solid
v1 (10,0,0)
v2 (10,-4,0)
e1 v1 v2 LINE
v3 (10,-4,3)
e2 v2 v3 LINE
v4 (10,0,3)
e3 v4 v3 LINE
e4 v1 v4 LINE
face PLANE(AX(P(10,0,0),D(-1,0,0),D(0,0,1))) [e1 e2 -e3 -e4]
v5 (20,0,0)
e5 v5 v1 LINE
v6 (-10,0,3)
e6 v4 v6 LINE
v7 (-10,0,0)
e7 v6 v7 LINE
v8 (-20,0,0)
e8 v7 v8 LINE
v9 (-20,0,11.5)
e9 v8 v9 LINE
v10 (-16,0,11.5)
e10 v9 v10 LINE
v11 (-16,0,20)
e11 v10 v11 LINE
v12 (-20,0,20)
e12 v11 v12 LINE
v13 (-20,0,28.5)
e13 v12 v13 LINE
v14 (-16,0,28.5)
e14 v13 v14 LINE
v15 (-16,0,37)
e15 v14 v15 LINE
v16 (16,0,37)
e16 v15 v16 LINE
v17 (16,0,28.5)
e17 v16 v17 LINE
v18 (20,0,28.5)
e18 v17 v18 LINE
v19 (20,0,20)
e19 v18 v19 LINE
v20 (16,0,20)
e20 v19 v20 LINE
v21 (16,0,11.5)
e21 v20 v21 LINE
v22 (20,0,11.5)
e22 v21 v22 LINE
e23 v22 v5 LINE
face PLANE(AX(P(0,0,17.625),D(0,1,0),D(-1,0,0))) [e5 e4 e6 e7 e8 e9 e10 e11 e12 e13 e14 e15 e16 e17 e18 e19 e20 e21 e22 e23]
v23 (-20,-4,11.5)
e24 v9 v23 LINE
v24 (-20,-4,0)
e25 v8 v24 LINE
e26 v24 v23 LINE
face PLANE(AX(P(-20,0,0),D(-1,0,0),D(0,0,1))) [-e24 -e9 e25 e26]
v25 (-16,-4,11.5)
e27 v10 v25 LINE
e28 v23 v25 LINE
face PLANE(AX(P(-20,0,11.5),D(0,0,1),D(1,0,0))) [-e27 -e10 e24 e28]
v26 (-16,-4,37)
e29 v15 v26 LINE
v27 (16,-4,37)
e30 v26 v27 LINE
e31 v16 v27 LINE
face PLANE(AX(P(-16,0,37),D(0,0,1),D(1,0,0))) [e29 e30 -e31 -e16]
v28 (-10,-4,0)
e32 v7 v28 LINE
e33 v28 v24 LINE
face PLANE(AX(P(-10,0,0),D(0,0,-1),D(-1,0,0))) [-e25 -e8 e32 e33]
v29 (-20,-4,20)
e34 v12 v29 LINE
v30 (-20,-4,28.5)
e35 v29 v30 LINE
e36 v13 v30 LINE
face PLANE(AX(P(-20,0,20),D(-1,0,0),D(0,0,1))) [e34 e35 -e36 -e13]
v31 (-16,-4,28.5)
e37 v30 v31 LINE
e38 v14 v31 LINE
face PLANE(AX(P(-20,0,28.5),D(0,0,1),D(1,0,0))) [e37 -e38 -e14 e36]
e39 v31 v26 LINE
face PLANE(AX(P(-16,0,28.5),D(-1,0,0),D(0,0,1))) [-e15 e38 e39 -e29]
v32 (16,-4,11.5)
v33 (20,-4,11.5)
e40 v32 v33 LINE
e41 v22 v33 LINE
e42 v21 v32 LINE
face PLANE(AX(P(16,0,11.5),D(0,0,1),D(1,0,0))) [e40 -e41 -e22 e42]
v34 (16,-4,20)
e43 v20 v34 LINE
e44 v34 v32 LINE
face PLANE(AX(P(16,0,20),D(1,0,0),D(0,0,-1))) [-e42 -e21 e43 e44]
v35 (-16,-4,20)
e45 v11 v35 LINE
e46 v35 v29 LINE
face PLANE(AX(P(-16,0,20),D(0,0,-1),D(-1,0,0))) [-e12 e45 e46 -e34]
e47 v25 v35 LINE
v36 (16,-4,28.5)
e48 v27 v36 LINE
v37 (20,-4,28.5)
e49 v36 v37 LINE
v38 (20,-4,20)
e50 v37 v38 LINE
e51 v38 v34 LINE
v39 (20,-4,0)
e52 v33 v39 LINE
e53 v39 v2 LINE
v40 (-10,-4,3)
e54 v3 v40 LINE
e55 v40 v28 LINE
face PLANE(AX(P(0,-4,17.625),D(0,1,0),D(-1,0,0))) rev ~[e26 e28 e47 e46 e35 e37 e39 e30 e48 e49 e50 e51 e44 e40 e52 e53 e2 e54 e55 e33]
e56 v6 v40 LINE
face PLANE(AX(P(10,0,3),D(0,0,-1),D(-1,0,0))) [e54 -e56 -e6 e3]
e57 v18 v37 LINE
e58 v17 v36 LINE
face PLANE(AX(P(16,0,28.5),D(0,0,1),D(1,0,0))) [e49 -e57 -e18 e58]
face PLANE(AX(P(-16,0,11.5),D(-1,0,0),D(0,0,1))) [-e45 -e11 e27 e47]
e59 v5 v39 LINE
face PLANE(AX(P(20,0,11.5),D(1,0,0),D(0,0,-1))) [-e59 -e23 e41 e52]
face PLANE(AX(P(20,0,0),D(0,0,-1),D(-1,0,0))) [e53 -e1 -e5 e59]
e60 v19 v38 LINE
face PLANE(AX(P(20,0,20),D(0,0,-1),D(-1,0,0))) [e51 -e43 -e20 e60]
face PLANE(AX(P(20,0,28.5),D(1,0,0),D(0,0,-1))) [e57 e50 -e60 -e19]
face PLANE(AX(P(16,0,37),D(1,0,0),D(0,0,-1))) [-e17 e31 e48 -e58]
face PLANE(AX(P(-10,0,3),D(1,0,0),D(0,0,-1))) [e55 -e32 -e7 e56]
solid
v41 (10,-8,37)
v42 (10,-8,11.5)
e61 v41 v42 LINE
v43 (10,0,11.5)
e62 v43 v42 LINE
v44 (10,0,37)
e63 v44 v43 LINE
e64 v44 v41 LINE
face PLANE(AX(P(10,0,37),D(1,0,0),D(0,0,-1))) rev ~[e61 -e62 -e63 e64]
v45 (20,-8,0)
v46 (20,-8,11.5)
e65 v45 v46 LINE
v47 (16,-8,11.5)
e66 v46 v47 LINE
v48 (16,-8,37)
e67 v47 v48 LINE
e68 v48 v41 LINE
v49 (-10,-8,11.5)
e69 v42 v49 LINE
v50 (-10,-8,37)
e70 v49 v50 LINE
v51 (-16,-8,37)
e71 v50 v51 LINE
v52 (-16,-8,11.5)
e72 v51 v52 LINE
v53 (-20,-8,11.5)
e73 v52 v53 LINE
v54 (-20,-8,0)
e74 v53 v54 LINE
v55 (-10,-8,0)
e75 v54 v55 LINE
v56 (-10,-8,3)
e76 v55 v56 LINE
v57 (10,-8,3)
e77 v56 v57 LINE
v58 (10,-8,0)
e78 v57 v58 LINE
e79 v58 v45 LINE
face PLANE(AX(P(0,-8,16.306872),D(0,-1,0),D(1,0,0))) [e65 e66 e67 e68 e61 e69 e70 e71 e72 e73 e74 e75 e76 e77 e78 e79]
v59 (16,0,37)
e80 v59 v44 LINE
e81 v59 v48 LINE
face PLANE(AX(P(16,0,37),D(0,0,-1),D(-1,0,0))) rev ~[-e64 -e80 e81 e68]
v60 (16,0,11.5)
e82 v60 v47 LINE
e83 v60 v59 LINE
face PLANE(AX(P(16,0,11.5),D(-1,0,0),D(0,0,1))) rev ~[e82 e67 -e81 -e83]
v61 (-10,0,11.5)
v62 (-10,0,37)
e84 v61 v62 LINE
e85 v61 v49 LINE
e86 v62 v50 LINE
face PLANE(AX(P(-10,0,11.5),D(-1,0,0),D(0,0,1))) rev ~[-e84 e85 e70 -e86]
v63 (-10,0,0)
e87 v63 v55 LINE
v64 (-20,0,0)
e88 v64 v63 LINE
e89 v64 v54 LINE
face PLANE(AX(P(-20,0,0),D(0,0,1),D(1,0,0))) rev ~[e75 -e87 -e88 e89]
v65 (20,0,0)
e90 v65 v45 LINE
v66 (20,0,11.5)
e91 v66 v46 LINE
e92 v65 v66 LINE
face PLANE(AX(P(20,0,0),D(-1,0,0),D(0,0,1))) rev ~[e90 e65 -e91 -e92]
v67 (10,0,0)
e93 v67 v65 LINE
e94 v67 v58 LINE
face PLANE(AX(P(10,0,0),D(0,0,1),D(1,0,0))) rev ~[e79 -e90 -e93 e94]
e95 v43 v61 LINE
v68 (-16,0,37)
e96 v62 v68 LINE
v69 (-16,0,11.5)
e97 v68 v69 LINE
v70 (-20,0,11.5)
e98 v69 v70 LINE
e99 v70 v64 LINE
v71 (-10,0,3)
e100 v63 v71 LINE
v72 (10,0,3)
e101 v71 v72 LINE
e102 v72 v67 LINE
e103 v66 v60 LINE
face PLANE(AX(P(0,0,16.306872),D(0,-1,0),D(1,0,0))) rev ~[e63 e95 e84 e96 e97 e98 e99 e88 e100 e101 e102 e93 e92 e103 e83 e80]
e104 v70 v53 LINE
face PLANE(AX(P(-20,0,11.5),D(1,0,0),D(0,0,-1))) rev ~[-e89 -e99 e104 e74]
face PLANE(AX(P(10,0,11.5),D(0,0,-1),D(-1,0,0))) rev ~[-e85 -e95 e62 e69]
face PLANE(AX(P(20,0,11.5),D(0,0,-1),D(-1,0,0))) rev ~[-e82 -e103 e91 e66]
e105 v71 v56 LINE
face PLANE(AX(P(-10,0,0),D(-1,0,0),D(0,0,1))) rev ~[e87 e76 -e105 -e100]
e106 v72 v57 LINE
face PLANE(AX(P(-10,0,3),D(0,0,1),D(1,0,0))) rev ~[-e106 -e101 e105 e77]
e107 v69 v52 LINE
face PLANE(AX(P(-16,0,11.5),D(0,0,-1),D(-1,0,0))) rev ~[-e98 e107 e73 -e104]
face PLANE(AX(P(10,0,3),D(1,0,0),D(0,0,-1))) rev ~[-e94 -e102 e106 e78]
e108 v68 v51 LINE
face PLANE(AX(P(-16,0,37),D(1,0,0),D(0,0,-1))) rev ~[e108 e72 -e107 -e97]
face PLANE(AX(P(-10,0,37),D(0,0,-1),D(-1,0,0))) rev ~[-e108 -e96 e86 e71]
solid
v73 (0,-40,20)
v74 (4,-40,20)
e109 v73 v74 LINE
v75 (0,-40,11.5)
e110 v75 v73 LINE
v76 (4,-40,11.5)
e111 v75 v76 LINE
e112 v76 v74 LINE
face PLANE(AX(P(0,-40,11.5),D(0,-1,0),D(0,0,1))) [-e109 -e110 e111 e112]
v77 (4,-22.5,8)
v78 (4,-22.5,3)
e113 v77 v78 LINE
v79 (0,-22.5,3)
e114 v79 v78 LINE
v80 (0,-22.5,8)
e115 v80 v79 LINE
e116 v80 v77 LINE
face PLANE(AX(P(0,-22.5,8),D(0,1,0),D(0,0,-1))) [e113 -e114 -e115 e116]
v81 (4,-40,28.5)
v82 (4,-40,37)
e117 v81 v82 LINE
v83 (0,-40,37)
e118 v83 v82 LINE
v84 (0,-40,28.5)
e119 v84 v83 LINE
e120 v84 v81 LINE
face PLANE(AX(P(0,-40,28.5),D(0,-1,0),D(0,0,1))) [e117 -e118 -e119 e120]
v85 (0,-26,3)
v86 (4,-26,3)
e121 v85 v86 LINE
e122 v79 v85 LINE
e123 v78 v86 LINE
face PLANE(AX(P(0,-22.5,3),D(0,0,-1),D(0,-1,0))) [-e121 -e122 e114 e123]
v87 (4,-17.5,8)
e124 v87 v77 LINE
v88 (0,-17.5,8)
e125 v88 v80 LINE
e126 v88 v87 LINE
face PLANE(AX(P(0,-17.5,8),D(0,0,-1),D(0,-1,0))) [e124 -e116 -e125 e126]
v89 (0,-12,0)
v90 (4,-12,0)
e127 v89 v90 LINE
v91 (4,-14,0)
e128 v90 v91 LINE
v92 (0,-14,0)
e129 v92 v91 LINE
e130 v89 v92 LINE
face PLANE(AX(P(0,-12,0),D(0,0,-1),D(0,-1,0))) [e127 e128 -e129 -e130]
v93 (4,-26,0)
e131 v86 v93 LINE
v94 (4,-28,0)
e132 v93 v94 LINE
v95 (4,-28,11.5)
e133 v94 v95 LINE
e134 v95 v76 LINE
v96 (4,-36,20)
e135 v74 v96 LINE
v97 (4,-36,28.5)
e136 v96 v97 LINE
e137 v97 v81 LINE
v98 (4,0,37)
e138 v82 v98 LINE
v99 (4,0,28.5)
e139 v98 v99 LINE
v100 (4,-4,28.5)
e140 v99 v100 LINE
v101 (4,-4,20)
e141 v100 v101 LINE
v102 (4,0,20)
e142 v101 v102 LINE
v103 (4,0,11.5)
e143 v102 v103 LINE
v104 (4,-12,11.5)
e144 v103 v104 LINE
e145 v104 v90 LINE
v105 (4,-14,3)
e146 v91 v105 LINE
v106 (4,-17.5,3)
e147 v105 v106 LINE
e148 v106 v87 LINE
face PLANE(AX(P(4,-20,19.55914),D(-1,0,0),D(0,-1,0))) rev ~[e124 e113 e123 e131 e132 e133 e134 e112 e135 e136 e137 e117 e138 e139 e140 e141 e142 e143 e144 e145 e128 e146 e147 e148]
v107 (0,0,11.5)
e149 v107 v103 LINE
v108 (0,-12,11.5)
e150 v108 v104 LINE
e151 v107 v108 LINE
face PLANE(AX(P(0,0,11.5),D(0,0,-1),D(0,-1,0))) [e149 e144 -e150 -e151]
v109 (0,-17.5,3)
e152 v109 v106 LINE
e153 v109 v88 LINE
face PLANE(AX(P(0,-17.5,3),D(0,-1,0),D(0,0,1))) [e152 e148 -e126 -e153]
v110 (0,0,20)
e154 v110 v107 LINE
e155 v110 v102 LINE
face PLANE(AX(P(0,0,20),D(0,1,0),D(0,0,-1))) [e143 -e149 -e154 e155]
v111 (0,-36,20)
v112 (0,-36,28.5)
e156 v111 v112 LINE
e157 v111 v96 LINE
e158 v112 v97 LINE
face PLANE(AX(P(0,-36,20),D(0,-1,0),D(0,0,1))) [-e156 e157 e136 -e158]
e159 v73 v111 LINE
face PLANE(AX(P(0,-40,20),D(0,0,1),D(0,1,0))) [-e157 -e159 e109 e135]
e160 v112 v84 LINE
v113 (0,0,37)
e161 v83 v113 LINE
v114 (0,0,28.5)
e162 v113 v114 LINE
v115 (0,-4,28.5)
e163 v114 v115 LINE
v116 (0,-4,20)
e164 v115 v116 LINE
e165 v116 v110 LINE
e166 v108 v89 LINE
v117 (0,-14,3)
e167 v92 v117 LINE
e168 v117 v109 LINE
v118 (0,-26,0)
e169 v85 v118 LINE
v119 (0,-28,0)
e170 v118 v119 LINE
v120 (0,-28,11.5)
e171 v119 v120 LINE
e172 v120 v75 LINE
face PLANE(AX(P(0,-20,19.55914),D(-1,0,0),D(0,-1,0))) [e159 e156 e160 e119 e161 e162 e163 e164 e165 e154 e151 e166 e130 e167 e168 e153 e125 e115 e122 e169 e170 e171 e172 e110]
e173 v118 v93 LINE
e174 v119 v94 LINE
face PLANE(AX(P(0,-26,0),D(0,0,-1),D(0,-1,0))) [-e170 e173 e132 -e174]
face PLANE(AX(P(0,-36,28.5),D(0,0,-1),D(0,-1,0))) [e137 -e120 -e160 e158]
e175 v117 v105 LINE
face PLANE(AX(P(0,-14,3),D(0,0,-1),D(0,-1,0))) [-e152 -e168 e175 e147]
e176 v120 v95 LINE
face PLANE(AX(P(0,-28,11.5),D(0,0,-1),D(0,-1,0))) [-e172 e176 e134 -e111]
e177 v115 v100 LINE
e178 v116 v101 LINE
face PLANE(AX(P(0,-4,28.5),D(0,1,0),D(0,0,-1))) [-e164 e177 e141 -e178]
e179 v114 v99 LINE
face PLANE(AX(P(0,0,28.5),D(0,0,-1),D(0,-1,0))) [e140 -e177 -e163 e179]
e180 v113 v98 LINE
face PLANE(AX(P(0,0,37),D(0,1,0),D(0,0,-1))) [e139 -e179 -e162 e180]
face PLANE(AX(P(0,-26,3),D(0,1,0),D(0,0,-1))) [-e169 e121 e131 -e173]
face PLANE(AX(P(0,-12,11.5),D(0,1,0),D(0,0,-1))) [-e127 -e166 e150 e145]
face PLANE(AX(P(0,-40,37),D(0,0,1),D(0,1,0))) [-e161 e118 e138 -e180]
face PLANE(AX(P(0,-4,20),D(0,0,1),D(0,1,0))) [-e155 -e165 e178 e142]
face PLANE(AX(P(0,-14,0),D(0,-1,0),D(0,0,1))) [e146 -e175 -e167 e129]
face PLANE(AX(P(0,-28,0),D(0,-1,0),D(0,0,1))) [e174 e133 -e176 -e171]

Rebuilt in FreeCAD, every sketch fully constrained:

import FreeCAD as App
import Part
import Sketcher
Q = App.Units.Quantity


def add_polygon(sketch, points):
    """Adds a closed chain of lines whose ends are joined by coincident constraints."""
    first, n = sketch.GeometryCount, len(points)
    for a, b in zip(points, points[1:] + points[:1]):
        sketch.addGeometry(Part.LineSegment(App.Vector(*a, 0), App.Vector(*b, 0)), False)
    for i in range(n):
        sketch.addConstraint(Sketcher.Constraint("Coincident", first + i, 2, first + (i + 1) % n, 1))

doc = App.newDocument("Part")
body = doc.addObject("PartDesign::Body", "Body")

# Sketch on XZ plane
sketch1 = body.newObject("Sketcher::SketchObject", "Sketch")
sketch1.AttachmentSupport = (doc.getObject("XZ_Plane"), [""])
sketch1.MapMode = "FlatFace"
add_polygon(sketch1, [(16, 37), (-16, 37), (-16, 28.5), (-20, 28.5), (-20, 20), (-16, 20), (-16, 11.5), (-20, 11.5), (-20, 0), (-10, 0), (-10, 3), (10, 3), (10, 0), (20, 0), (20, 11.5), (16, 11.5), (16, 20), (20, 20), (20, 28.5), (16, 28.5)])  # lines 0-19
sketch1.addConstraint(Sketcher.Constraint("Horizontal", 0))
sketch1.addConstraint(Sketcher.Constraint("Vertical", 1))
sketch1.addConstraint(Sketcher.Constraint("Horizontal", 2))
sketch1.addConstraint(Sketcher.Constraint("Vertical", 3))
sketch1.addConstraint(Sketcher.Constraint("Horizontal", 4))
sketch1.addConstraint(Sketcher.Constraint("Vertical", 5))
sketch1.addConstraint(Sketcher.Constraint("Horizontal", 6))
sketch1.addConstraint(Sketcher.Constraint("Vertical", 7))
sketch1.addConstraint(Sketcher.Constraint("Horizontal", 8))
sketch1.addConstraint(Sketcher.Constraint("Vertical", 9))
sketch1.addConstraint(Sketcher.Constraint("Horizontal", 10))
sketch1.addConstraint(Sketcher.Constraint("Vertical", 11))
sketch1.addConstraint(Sketcher.Constraint("Horizontal", 12))
sketch1.addConstraint(Sketcher.Constraint("Vertical", 13))
sketch1.addConstraint(Sketcher.Constraint("Horizontal", 14))
sketch1.addConstraint(Sketcher.Constraint("Vertical", 15))
sketch1.addConstraint(Sketcher.Constraint("Horizontal", 16))
sketch1.addConstraint(Sketcher.Constraint("Vertical", 17))
sketch1.addConstraint(Sketcher.Constraint("Horizontal", 18))
sketch1.addConstraint(Sketcher.Constraint("Vertical", 19))
sketch1.addConstraint(Sketcher.Constraint("Symmetric", 8, 2, 11, 2, -1, 1))
sketch1.addConstraint(Sketcher.Constraint("Symmetric", 7, 2, 12, 2, -2))
sketch1.addConstraint(Sketcher.Constraint("Symmetric", 5, 2, 14, 2, -2))
sketch1.addConstraint(Sketcher.Constraint("Symmetric", 3, 2, 16, 2, -2))
sketch1.addConstraint(Sketcher.Constraint("Symmetric", 1, 2, 18, 2, -2))
sketch1.addConstraint(Sketcher.Constraint("Vertical", 1, 2, 4, 2))
sketch1.addConstraint(Sketcher.Constraint("Vertical", 3, 2, 6, 2))
sketch1.addConstraint(Sketcher.Constraint("Equal", 1, 3))
sketch1.addConstraint(Sketcher.Constraint("Equal", 3, 5))
sketch1.addConstraint(Sketcher.Constraint("DistanceX", 0, 2, 0, 1, Q("32 mm")))
sketch1.addConstraint(Sketcher.Constraint("DistanceX", 2, 2, 2, 1, Q("4 mm")))
sketch1.addConstraint(Sketcher.Constraint("DistanceX", 8, 1, 8, 2, Q("10 mm")))
sketch1.addConstraint(Sketcher.Constraint("DistanceY", 9, 1, 9, 2, Q("3 mm")))
sketch1.addConstraint(Sketcher.Constraint("DistanceY", 1, 2, 1, 1, Q("8.5 mm")))
sketch1.addConstraint(Sketcher.Constraint("DistanceY", 7, 2, 7, 1, Q("11.5 mm")))
pad1 = body.newObject("PartDesign::Pad", "Pad")
pad1.Profile = sketch1
pad1.Length = 4
body2 = doc.addObject("PartDesign::Body", "Body001")

# Sketch on YZ plane
sketch2 = body2.newObject("Sketcher::SketchObject", "Sketch001")
sketch2.AttachmentSupport = (doc.getObject("YZ_Plane001"), [""])
sketch2.MapMode = "FlatFace"
add_polygon(sketch2, [(0, 28.5), (0, 37), (-40, 37), (-40, 28.5), (-36, 28.5), (-36, 20), (-40, 20), (-40, 11.5), (-28, 11.5), (-28, 0), (-26, 0), (-26, 3), (-22.5, 3), (-22.5, 8), (-17.5, 8), (-17.5, 3), (-14, 3), (-14, 0), (-12, 0), (-12, 11.5), (0, 11.5), (0, 20), (-4, 20), (-4, 28.5)])  # lines 0-23
sketch2.addConstraint(Sketcher.Constraint("Vertical", 0))
sketch2.addConstraint(Sketcher.Constraint("Horizontal", 1))
sketch2.addConstraint(Sketcher.Constraint("Vertical", 2))
sketch2.addConstraint(Sketcher.Constraint("Horizontal", 3))
sketch2.addConstraint(Sketcher.Constraint("Vertical", 4))
sketch2.addConstraint(Sketcher.Constraint("Horizontal", 5))
sketch2.addConstraint(Sketcher.Constraint("Vertical", 6))
sketch2.addConstraint(Sketcher.Constraint("Horizontal", 7))
sketch2.addConstraint(Sketcher.Constraint("Vertical", 8))
sketch2.addConstraint(Sketcher.Constraint("Horizontal", 9))
sketch2.addConstraint(Sketcher.Constraint("Vertical", 10))
sketch2.addConstraint(Sketcher.Constraint("Horizontal", 11))
sketch2.addConstraint(Sketcher.Constraint("Vertical", 12))
sketch2.addConstraint(Sketcher.Constraint("Horizontal", 13))
sketch2.addConstraint(Sketcher.Constraint("Vertical", 14))
sketch2.addConstraint(Sketcher.Constraint("Horizontal", 15))
sketch2.addConstraint(Sketcher.Constraint("Vertical", 16))
sketch2.addConstraint(Sketcher.Constraint("Horizontal", 17))
sketch2.addConstraint(Sketcher.Constraint("Vertical", 18))
sketch2.addConstraint(Sketcher.Constraint("Horizontal", 19))
sketch2.addConstraint(Sketcher.Constraint("Vertical", 20))
sketch2.addConstraint(Sketcher.Constraint("Horizontal", 21))
sketch2.addConstraint(Sketcher.Constraint("Vertical", 22))
sketch2.addConstraint(Sketcher.Constraint("Horizontal", 23))
sketch2.addConstraint(Sketcher.Constraint("PointOnObject", 0, 2, -2))
sketch2.addConstraint(Sketcher.Constraint("PointOnObject", 8, 2, -1))
sketch2.addConstraint(Sketcher.Constraint("PointOnObject", 16, 2, -1))
sketch2.addConstraint(Sketcher.Constraint("PointOnObject", 19, 2, -2))
sketch2.addConstraint(Sketcher.Constraint("Horizontal", 11, 2, 14, 2))
sketch2.addConstraint(Sketcher.Constraint("Horizontal", 7, 2, 18, 2))
sketch2.addConstraint(Sketcher.Constraint("Horizontal", 5, 2, 20, 2))
sketch2.addConstraint(Sketcher.Constraint("Horizontal", 3, 2, 22, 2))
sketch2.addConstraint(Sketcher.Constraint("Vertical", 2, 2, 5, 2))
sketch2.addConstraint(Sketcher.Constraint("Equal", 11, 15))
sketch2.addConstraint(Sketcher.Constraint("Equal", 9, 17))
sketch2.addConstraint(Sketcher.Constraint("Equal", 7, 19))
sketch2.addConstraint(Sketcher.Constraint("Equal", 5, 21))
sketch2.addConstraint(Sketcher.Constraint("Equal", 2, 4))
sketch2.addConstraint(Sketcher.Constraint("Equal", 4, 6))
sketch2.addConstraint(Sketcher.Constraint("Equal", 13, 12))
sketch2.addConstraint(Sketcher.Constraint("DistanceX", 1, 2, 1, 1, Q("40 mm")))
sketch2.addConstraint(Sketcher.Constraint("DistanceX", 3, 1, 3, 2, Q("4 mm")))
sketch2.addConstraint(Sketcher.Constraint("DistanceX", 7, 1, 7, 2, Q("12 mm")))
sketch2.addConstraint(Sketcher.Constraint("DistanceX", 9, 1, 9, 2, Q("2 mm")))
sketch2.addConstraint(Sketcher.Constraint("DistanceX", 13, 1, 13, 2, Q("5 mm")))
sketch2.addConstraint(Sketcher.Constraint("DistanceY", 10, 1, 10, 2, Q("3 mm")))
sketch2.addConstraint(Sketcher.Constraint("DistanceY", 0, 1, 0, 2, Q("8.5 mm")))
sketch2.addConstraint(Sketcher.Constraint("DistanceY", 8, 2, 8, 1, Q("11.5 mm")))
pad2 = body2.newObject("PartDesign::Pad", "Pad001")
pad2.Profile = sketch2
pad2.Length = 4
body3 = doc.addObject("PartDesign::Body", "Body002")

# Sketch on XZ plane
sketch3 = body3.newObject("Sketcher::SketchObject", "Sketch002")
sketch3.AttachmentSupport = (doc.getObject("XZ_Plane002"), [""])
sketch3.MapMode = "FlatFace"
add_polygon(sketch3, [(-20, 11.5), (-20, 0), (-10, 0), (-10, 3), (10, 3), (10, 0), (20, 0), (20, 11.5), (16, 11.5), (16, 37), (10, 37), (10, 11.5), (-10, 11.5), (-10, 37), (-16, 37), (-16, 11.5)])  # lines 0-15
sketch3.addConstraint(Sketcher.Constraint("Vertical", 0))
sketch3.addConstraint(Sketcher.Constraint("Horizontal", 1))
sketch3.addConstraint(Sketcher.Constraint("Vertical", 2))
sketch3.addConstraint(Sketcher.Constraint("Horizontal", 3))
sketch3.addConstraint(Sketcher.Constraint("Vertical", 4))
sketch3.addConstraint(Sketcher.Constraint("Horizontal", 5))
sketch3.addConstraint(Sketcher.Constraint("Vertical", 6))
sketch3.addConstraint(Sketcher.Constraint("Horizontal", 7))
sketch3.addConstraint(Sketcher.Constraint("Vertical", 8))
sketch3.addConstraint(Sketcher.Constraint("Horizontal", 9))
sketch3.addConstraint(Sketcher.Constraint("Vertical", 10))
sketch3.addConstraint(Sketcher.Constraint("Horizontal", 11))
sketch3.addConstraint(Sketcher.Constraint("Vertical", 12))
sketch3.addConstraint(Sketcher.Constraint("Horizontal", 13))
sketch3.addConstraint(Sketcher.Constraint("Vertical", 14))
sketch3.addConstraint(Sketcher.Constraint("Horizontal", 15))
sketch3.addConstraint(Sketcher.Constraint("Symmetric", 1, 2, 4, 2, -1, 1))
sketch3.addConstraint(Sketcher.Constraint("Symmetric", 0, 2, 5, 2, -2))
sketch3.addConstraint(Sketcher.Constraint("Symmetric", 9, 2, 12, 2, -2))
sketch3.addConstraint(Sketcher.Constraint("Symmetric", 7, 2, 14, 2, -2))
sketch3.addConstraint(Sketcher.Constraint("Horizontal", 7, 2, 10, 2))
sketch3.addConstraint(Sketcher.Constraint("Vertical", 4, 2, 9, 2))
sketch3.addConstraint(Sketcher.Constraint("DistanceX", 1, 1, 1, 2, Q("10 mm")))
sketch3.addConstraint(Sketcher.Constraint("DistanceX", 3, 1, 3, 2, Q("20 mm")))
sketch3.addConstraint(Sketcher.Constraint("DistanceX", 7, 2, 7, 1, Q("4 mm")))
sketch3.addConstraint(Sketcher.Constraint("DistanceY", 2, 1, 2, 2, Q("3 mm")))
sketch3.addConstraint(Sketcher.Constraint("DistanceY", 0, 2, 0, 1, Q("11.5 mm")))
sketch3.addConstraint(Sketcher.Constraint("DistanceY", 8, 1, 8, 2, Q("25.5 mm")))
pad3 = body3.newObject("PartDesign::Pad", "Pad002")
pad3.Profile = sketch3
pad3.Length = 8

doc.recompute()
